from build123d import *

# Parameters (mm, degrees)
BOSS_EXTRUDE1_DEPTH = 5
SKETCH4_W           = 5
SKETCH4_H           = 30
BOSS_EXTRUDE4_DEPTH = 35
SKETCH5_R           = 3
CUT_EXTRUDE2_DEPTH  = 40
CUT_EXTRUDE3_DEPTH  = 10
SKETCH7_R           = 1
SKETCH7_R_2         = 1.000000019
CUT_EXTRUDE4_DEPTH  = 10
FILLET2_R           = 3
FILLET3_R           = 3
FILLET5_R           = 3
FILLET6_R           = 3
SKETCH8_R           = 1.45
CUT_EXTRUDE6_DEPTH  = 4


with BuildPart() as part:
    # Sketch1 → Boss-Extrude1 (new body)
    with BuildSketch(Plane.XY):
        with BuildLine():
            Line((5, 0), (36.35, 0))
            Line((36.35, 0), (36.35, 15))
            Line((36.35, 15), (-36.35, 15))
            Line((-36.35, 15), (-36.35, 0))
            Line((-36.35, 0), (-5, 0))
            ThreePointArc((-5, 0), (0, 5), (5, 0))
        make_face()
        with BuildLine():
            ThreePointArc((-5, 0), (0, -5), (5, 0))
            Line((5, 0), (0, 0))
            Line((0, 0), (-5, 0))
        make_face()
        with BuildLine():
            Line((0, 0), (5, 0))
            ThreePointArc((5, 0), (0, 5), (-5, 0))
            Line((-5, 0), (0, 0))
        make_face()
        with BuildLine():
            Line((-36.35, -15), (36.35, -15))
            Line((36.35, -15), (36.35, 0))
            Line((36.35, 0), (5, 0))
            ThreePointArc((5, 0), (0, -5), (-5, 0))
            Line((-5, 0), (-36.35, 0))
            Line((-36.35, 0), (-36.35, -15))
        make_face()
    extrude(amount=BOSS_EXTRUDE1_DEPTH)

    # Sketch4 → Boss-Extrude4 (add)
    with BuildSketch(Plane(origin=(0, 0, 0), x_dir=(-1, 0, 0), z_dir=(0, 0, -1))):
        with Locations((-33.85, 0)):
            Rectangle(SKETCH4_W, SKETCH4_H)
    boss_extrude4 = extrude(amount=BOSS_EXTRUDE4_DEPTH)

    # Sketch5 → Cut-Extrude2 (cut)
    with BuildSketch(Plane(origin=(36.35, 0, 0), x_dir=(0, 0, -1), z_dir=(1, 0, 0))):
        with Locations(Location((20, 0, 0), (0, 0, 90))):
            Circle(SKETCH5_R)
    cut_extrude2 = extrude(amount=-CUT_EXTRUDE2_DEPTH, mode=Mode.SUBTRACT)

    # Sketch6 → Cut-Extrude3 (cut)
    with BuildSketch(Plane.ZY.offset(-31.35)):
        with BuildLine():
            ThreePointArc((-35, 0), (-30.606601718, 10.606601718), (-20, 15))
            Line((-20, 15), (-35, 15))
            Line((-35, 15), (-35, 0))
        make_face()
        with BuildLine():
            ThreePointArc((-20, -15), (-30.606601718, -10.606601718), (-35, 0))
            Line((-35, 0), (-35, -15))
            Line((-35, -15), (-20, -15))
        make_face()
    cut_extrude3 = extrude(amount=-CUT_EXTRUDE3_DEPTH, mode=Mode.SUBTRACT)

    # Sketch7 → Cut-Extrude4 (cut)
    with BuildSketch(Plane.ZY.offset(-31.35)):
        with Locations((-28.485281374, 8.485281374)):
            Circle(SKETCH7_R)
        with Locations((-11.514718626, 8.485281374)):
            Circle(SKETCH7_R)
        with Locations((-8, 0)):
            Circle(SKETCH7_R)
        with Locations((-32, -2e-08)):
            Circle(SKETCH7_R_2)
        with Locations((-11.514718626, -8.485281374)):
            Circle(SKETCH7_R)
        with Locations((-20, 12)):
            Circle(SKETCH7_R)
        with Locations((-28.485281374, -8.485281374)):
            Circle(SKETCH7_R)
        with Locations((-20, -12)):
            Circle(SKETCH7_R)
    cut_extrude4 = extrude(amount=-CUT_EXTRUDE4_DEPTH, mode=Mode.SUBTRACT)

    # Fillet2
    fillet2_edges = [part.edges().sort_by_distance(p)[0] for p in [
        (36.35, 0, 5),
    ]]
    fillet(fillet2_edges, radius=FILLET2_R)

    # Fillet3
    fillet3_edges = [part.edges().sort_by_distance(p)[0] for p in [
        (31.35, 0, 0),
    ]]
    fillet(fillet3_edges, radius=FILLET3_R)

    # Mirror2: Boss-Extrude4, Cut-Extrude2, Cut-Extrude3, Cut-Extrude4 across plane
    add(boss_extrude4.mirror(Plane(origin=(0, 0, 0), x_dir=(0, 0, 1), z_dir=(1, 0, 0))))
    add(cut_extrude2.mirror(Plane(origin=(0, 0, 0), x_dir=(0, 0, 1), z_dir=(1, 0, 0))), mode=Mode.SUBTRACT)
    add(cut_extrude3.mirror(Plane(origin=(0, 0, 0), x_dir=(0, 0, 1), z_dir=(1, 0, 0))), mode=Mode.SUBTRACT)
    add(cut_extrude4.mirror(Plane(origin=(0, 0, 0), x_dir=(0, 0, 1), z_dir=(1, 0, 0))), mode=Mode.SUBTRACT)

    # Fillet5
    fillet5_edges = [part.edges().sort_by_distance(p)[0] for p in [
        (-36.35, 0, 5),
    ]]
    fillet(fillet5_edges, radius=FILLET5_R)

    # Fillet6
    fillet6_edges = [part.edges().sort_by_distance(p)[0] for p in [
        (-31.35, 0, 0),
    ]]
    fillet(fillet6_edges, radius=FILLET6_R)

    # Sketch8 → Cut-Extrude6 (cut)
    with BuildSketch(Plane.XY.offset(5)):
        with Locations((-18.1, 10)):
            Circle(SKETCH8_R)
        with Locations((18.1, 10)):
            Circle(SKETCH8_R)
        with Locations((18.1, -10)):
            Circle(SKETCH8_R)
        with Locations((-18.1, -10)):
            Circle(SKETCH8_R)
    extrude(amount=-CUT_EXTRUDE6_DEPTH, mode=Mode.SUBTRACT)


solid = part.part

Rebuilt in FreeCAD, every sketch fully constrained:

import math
import FreeCAD as App
import Part
import Sketcher
from FreeCAD import Vector


def edges_at(feature, points):
    """Names of the edges that pass closest to the given points."""
    edges = feature.Shape.Edges
    near = lambda p: min(range(len(edges)), key=lambda i: edges[i].distToShape(Part.Vertex(*p))[0])
    return sorted({f"Edge{near(p) + 1}" for p in points})

doc = App.newDocument("Part")
params = doc.addObject("Spreadsheet::Sheet", "Params")
for row, (alias, value) in enumerate([
    ("sketch1_height", "30 mm"),
    ("sketch1_width", "72.7 mm"),
    ("pad1_length", "5 mm"),
    ("sketch2_width", "5 mm"),
    ("sketch2_height", "30 mm"),
    ("pad2_length", "35 mm"),
    ("sketch3_diameter", "6 mm"),
    ("pocket1_length", "40 mm"),
    ("sketch4_radius", "15 mm"),
    ("pocket2_length", "10 mm"),
    ("sketch5_diameter", "2 mm"),
    ("pocket3_length", "10 mm"),
    ("fillet_radius", "3 mm"),
    ("fillet2_radius", "3 mm"),
    ("fillet3_radius", "3 mm"),
    ("fillet4_radius", "3 mm"),
    ("sketch6_diameter", "2.9 mm"),
    ("pocket4_length", "4 mm"),
], start=1):
    params.set(f"A{row}", alias)
    params.set(f"B{row}", "=" + value)
    params.setAlias(f"B{row}", alias)

body = doc.addObject("PartDesign::Body", "Body")

# Sketch on XY plane
sketch1 = body.newObject("Sketcher::SketchObject", "Sketch")
sketch1.AttachmentSupport = (doc.getObject("XY_Plane"), [""])
sketch1.MapMode = "FlatFace"
sketch1.addGeometry(Part.LineSegment(Vector(-36, 15, 0), Vector(-36, -15, 0)), False)
sketch1.addGeometry(Part.LineSegment(Vector(-36, -15, 0), Vector(36, -15, 0)), False)
sketch1.addGeometry(Part.LineSegment(Vector(36, -15, 0), Vector(36, 15, 0)), False)
sketch1.addGeometry(Part.LineSegment(Vector(36, 15, 0), Vector(-36, 15, 0)), False)
sketch1.addConstraint(Sketcher.Constraint("Coincident", 0, 2, 1, 1))
sketch1.addConstraint(Sketcher.Constraint("Coincident", 1, 2, 2, 1))
sketch1.addConstraint(Sketcher.Constraint("Coincident", 2, 2, 3, 1))
sketch1.addConstraint(Sketcher.Constraint("Coincident", 3, 2, 0, 1))
sketch1.addConstraint(Sketcher.Constraint("Vertical", 0))
sketch1.addConstraint(Sketcher.Constraint("Horizontal", 1))
sketch1.addConstraint(Sketcher.Constraint("Vertical", 2))
sketch1.addConstraint(Sketcher.Constraint("Horizontal", 3))
sketch1.addConstraint(Sketcher.Constraint("Symmetric", 0, 2, 2, 2, -1, 1))
sketch1.addConstraint(Sketcher.Constraint("DistanceY", 0, 2, 0, 1, 30.0))
sketch1.addConstraint(Sketcher.Constraint("DistanceX", 1, 1, 1, 2, 72.7))
sketch1.setExpression("Constraints[9]", "Params.sketch1_height")
sketch1.setExpression("Constraints[10]", "Params.sketch1_width")
pad1 = body.newObject("PartDesign::Pad", "Pad")
pad1.Profile = sketch1
pad1.setExpression("Length", "Params.pad1_length")

# Sketch on XY plane
sketch2 = body.newObject("Sketcher::SketchObject", "Sketch001")
sketch2.AttachmentSupport = (doc.getObject("XY_Plane"), [""])
sketch2.MapMode = "FlatFace"
sketch2.addGeometry(Part.LineSegment(Vector(36, 15, 0), Vector(36, -15, 0)), False)
sketch2.addGeometry(Part.LineSegment(Vector(36, -15, 0), Vector(31, -15, 0)), False)
sketch2.addGeometry(Part.LineSegment(Vector(31, -15, 0), Vector(31, 15, 0)), False)
sketch2.addGeometry(Part.LineSegment(Vector(31, 15, 0), Vector(36, 15, 0)), False)
sketch2.addConstraint(Sketcher.Constraint("Coincident", 0, 2, 1, 1))
sketch2.addConstraint(Sketcher.Constraint("Coincident", 1, 2, 2, 1))
sketch2.addConstraint(Sketcher.Constraint("Coincident", 2, 2, 3, 1))
sketch2.addConstraint(Sketcher.Constraint("Coincident", 3, 2, 0, 1))
sketch2.addConstraint(Sketcher.Constraint("Vertical", 0))
sketch2.addConstraint(Sketcher.Constraint("Horizontal", 1))
sketch2.addConstraint(Sketcher.Constraint("Vertical", 2))
sketch2.addConstraint(Sketcher.Constraint("Horizontal", 3))
sketch2.addConstraint(Sketcher.Constraint("DistanceX", 1, 2, 1, 1, 5.0))
sketch2.addConstraint(Sketcher.Constraint("DistanceY", 0, 2, 0, 1, 30.0))
sketch2.addConstraint(Sketcher.Constraint("DistanceY", 0, 2, -1, 1, 15.0))
sketch2.addConstraint(Sketcher.Constraint("DistanceX", -1, 1, 0, 2, 36.35))
sketch2.setExpression("Constraints[8]", "Params.sketch2_width")
sketch2.setExpression("Constraints[9]", "Params.sketch2_height")
pad2 = body.newObject("PartDesign::Pad", "Pad001")
pad2.Profile = sketch2
pad2.setExpression("Length", "Params.pad2_length")
pad2.Reversed = True

# Sketch on YZ plane
sketch3 = body.newObject("Sketcher::SketchObject", "Sketch002")
sketch3.AttachmentSupport = (doc.getObject("YZ_Plane"), [""])
sketch3.MapMode = "FlatFace"
sketch3.AttachmentOffset = App.Placement(Vector(0, 0, 36.35), App.Rotation())
sketch3.addGeometry(Part.Circle(Vector(0, -20, 0), Vector(0, 0, 1), 3), False)
sketch3.addConstraint(Sketcher.Constraint("PointOnObject", 0, 3, -2))
sketch3.addConstraint(Sketcher.Constraint("Diameter", 0, 6.0))
sketch3.addConstraint(Sketcher.Constraint("DistanceY", 0, 3, -1, 1, 20.0))
sketch3.setExpression("Constraints[1]", "Params.sketch3_diameter")
pocket1 = body.newObject("PartDesign::Pocket", "Pocket")
pocket1.Profile = sketch3
pocket1.setExpression("Length", "Params.pocket1_length")

# Sketch on YZ plane
sketch4 = body.newObject("Sketcher::SketchObject", "Sketch003")
sketch4.AttachmentSupport = (doc.getObject("YZ_Plane"), [""])
sketch4.MapMode = "FlatFace"
sketch4.AttachmentOffset = App.Placement(Vector(0, 0, 31.35), App.Rotation())
sketch4.addGeometry(Part.ArcOfCircle(Part.Circle(Vector(0, -20, 0), Vector(0, 0, 1), 15), math.radians(-90), math.radians(0)), False)
sketch4.addGeometry(Part.LineSegment(Vector(15, -20, 0), Vector(15, -35, 0)), False)
sketch4.addGeometry(Part.LineSegment(Vector(15, -35, 0), Vector(0, -35, 0)), False)
sketch4.addGeometry(Part.ArcOfCircle(Part.Circle(Vector(0, -20, 0), Vector(0, 0, 1), 15), math.radians(180), math.radians(270)), False)
sketch4.addGeometry(Part.LineSegment(Vector(0, -35, 0), Vector(-15, -35, 0)), False)
sketch4.addGeometry(Part.LineSegment(Vector(-15, -35, 0), Vector(-15, -20, 0)), False)
sketch4.addConstraint(Sketcher.Constraint("Tangent", 0, 2, 1, 1))
sketch4.addConstraint(Sketcher.Constraint("Coincident", 1, 2, 2, 1))
sketch4.addConstraint(Sketcher.Constraint("Tangent", 2, 2, 0, 1))
sketch4.addConstraint(Sketcher.Constraint("Tangent", 3, 2, 4, 1))
sketch4.addConstraint(Sketcher.Constraint("Coincident", 4, 2, 5, 1))
sketch4.addConstraint(Sketcher.Constraint("Tangent", 5, 2, 3, 1))
sketch4.addConstraint(Sketcher.Constraint("Vertical", 1))
sketch4.addConstraint(Sketcher.Constraint("Horizontal", 2))
sketch4.addConstraint(Sketcher.Constraint("Horizontal", 4))
sketch4.addConstraint(Sketcher.Constraint("Vertical", 5))
sketch4.addConstraint(Sketcher.Constraint("Coincident", 3, 3, 0, 3))
sketch4.addConstraint(Sketcher.Constraint("Equal", 0, 3))
sketch4.addConstraint(Sketcher.Constraint("PointOnObject", 0, 3, -2))
sketch4.addConstraint(Sketcher.Constraint("Radius", 0, 15.0))
sketch4.addConstraint(Sketcher.Constraint("DistanceY", 0, 3, -1, 1, 20.0))
sketch4.setExpression("Constraints[13]", "Params.sketch4_radius")
pocket2 = body.newObject("PartDesign::Pocket", "Pocket001")
pocket2.Profile = sketch4
pocket2.setExpression("Length", "Params.pocket2_length")
pocket2.Reversed = True

# Sketch on YZ plane
sketch5 = body.newObject("Sketcher::SketchObject", "Sketch004")
sketch5.AttachmentSupport = (doc.getObject("YZ_Plane"), [""])
sketch5.MapMode = "FlatFace"
sketch5.AttachmentOffset = App.Placement(Vector(0, 0, 31.35), App.Rotation())
sketch5.addGeometry(Part.Circle(Vector(8.5, -28.5, 0), Vector(0, 0, 1), 1), False)
sketch5.addGeometry(Part.Circle(Vector(8.5, -11.5, 0), Vector(0, 0, 1), 1), False)
sketch5.addGeometry(Part.Circle(Vector(0, -8, 0), Vector(0, 0, 1), 1), False)
sketch5.addGeometry(Part.Circle(Vector(0, -32, 0), Vector(0, 0, 1), 1), False)
sketch5.addGeometry(Part.Circle(Vector(-8.5, -11.5, 0), Vector(0, 0, 1), 1), False)
sketch5.addGeometry(Part.Circle(Vector(12, -20, 0), Vector(0, 0, 1), 1), False)
sketch5.addGeometry(Part.Circle(Vector(-8.5, -28.5, 0), Vector(0, 0, 1), 1), False)
sketch5.addGeometry(Part.Circle(Vector(-12, -20, 0), Vector(0, 0, 1), 1), False)
sketch5.addConstraint(Sketcher.Constraint("Equal", 0, 1))
sketch5.addConstraint(Sketcher.Constraint("Equal", 1, 2))
sketch5.addConstraint(Sketcher.Constraint("Equal", 2, 3))
sketch5.addConstraint(Sketcher.Constraint("Equal", 3, 4))
sketch5.addConstraint(Sketcher.Constraint("Equal", 4, 5))
sketch5.addConstraint(Sketcher.Constraint("Equal", 5, 6))
sketch5.addConstraint(Sketcher.Constraint("Equal", 6, 7))
sketch5.addConstraint(Sketcher.Constraint("Symmetric", 1, 3, 4, 3, -2))
sketch5.addConstraint(Sketcher.Constraint("Symmetric", 0, 3, 6, 3, -2))
sketch5.addConstraint(Sketcher.Constraint("Symmetric", 5, 3, 7, 3, -2))
sketch5.addConstraint(Sketcher.Constraint("PointOnObject", 2, 3, -2))
sketch5.addConstraint(Sketcher.Constraint("PointOnObject", 3, 3, -2))
sketch5.addConstraint(Sketcher.Constraint("Vertical", 0, 3, 1, 3))
sketch5.addConstraint(Sketcher.Constraint("Diameter", 0, 2.0))
sketch5.addConstraint(Sketcher.Constraint("DistanceY", 2, 3, -1, 1, 8.0))
sketch5.addConstraint(Sketcher.Constraint("DistanceY", 3, 3, -1, 1, 32.0))
sketch5.addConstraint(Sketcher.Constraint("DistanceX", -1, 1, 5, 3, 12.0))
sketch5.addConstraint(Sketcher.Constraint("DistanceY", 5, 3, -1, 1, 20.0))
sketch5.addConstraint(Sketcher.Constraint("DistanceX", -1, 1, 0, 3, 8.485281))
sketch5.addConstraint(Sketcher.Constraint("DistanceY", 0, 3, -1, 1, 28.485281))
sketch5.addConstraint(Sketcher.Constraint("DistanceY", 1, 3, -1, 1, 11.514719))
sketch5.setExpression("Constraints[13]", "Params.sketch5_diameter")
pocket3 = body.newObject("PartDesign::Pocket", "Pocket002")
pocket3.Profile = sketch5
pocket3.setExpression("Length", "Params.pocket3_length")
pocket3.Reversed = True
doc.recompute()

fillet = body.newObject("PartDesign::Fillet", "Fillet")
fillet.Base = (pocket3, edges_at(pocket3, [(36.35, 0, 5)]))
fillet.setExpression("Radius", "Params.fillet_radius")
doc.recompute()

fillet2 = body.newObject("PartDesign::Fillet", "Fillet001")
fillet2.Base = (fillet, edges_at(fillet, [(31.35, 0, 0)]))
fillet2.setExpression("Radius", "Params.fillet2_radius")
doc.recompute()

mirrored = body.newObject("PartDesign::Mirrored", "Mirrored")
mirrored.Originals = [pad2, pocket1, pocket2, pocket3]
mirrored.MirrorPlane = (doc.getObject("YZ_Plane"), [""])
body.Tip = mirrored
doc.recompute()

fillet3 = body.newObject("PartDesign::Fillet", "Fillet002")
fillet3.Base = (mirrored, edges_at(mirrored, [(-36.35, 0, 5)]))
fillet3.setExpression("Radius", "Params.fillet3_radius")
doc.recompute()

fillet4 = body.newObject("PartDesign::Fillet", "Fillet003")
fillet4.Base = (fillet3, edges_at(fillet3, [(-31.35, 0, 0)]))
fillet4.setExpression("Radius", "Params.fillet4_radius")

# Sketch on XY plane
sketch6 = body.newObject("Sketcher::SketchObject", "Sketch005")
sketch6.AttachmentSupport = (doc.getObject("XY_Plane"), [""])
sketch6.MapMode = "FlatFace"
sketch6.AttachmentOffset = App.Placement(Vector(0, 0, 5), App.Rotation())
sketch6.addGeometry(Part.Circle(Vector(-18.1, 10, 0), Vector(0, 0, 1), 1.4), False)
sketch6.addGeometry(Part.Circle(Vector(18.1, 10, 0), Vector(0, 0, 1), 1.4), False)
sketch6.addGeometry(Part.Circle(Vector(18.1, -10, 0), Vector(0, 0, 1), 1.4), False)
sketch6.addGeometry(Part.Circle(Vector(-18.1, -10, 0), Vector(0, 0, 1), 1.4), False)
sketch6.addConstraint(Sketcher.Constraint("Equal", 0, 1))
sketch6.addConstraint(Sketcher.Constraint("Equal", 1, 2))
sketch6.addConstraint(Sketcher.Constraint("Equal", 2, 3))
sketch6.addConstraint(Sketcher.Constraint("Symmetric", 0, 3, 2, 3, -1, 1))
sketch6.addConstraint(Sketcher.Constraint("Symmetric", 1, 3, 3, 3, -1, 1))
sketch6.addConstraint(Sketcher.Constraint("Symmetric", 0, 3, 1, 3, -2))
sketch6.addConstraint(Sketcher.Constraint("Diameter", 0, 2.9))
sketch6.addConstraint(Sketcher.Constraint("DistanceY", -1, 1, 0, 3, 10.0))
sketch6.addConstraint(Sketcher.Constraint("DistanceX", 0, 3, -1, 1, 18.1))
sketch6.setExpression("Constraints[6]", "Params.sketch6_diameter")
pocket4 = body.newObject("PartDesign::Pocket", "Pocket003")
pocket4.Profile = sketch6
pocket4.setExpression("Length", "Params.pocket4_length")

doc.recompute()
